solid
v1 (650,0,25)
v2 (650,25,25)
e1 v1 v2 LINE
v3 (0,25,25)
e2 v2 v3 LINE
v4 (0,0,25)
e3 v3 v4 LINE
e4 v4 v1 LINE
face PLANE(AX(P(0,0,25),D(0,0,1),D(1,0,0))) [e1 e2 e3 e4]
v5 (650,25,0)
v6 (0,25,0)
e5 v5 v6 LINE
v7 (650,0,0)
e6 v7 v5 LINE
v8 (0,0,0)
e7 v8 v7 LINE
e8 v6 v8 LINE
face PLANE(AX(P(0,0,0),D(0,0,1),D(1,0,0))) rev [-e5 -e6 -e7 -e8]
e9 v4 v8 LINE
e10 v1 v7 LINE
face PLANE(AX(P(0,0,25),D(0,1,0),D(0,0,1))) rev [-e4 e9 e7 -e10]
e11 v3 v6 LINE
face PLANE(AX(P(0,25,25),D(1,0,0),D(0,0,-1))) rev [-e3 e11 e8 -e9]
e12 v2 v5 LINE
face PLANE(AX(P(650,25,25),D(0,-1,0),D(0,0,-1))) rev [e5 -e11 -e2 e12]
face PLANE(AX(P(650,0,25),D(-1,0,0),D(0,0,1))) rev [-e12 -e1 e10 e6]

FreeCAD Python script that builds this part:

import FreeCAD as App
import Part
import Sketcher

V = App.Vector
Q = App.Units.Quantity


def add_polygon(sketch, points):
    """Adds a closed chain of lines whose ends are joined by coincident constraints."""
    first, n = sketch.GeometryCount, len(points)
    for a, b in zip(points, points[1:] + points[:1]):
        sketch.addGeometry(Part.LineSegment(App.Vector(*a, 0), App.Vector(*b, 0)), False)
    for i in range(n):
        sketch.addConstraint(Sketcher.Constraint("Coincident", first + i, 2, first + (i + 1) % n, 1))

doc = App.newDocument("Part")
params = doc.addObject("Spreadsheet::Sheet", "Params")
for row, (alias, value) in enumerate([
    ("sketch1_width", "650 mm"),
    ("sketch1_height", "25 mm"),
    ("pad1_length", "25 mm"),
], start=1):
    params.set(f"A{row}", alias)
    params.set(f"B{row}", "=" + value)
    params.setAlias(f"B{row}", alias)

body = doc.addObject("PartDesign::Body", "Body")

# Sketch on XY plane
sketch1 = doc.addObject("Sketcher::SketchObject", "Sketch")
body.addObject(sketch1)
sketch1.AttachmentSupport = (doc.XY_Plane, [""])
sketch1.MapMode = "FlatFace"
add_polygon(sketch1, [(0, 25), (0, 0), (650, 0), (650, 25)])  # lines 0-3
sketch1.addConstraint(Sketcher.Constraint("Vertical", 0))
sketch1.addConstraint(Sketcher.Constraint("Horizontal", 1))
sketch1.addConstraint(Sketcher.Constraint("Vertical", 2))
sketch1.addConstraint(Sketcher.Constraint("Horizontal", 3))
sketch1.addConstraint(Sketcher.Constraint("Coincident", 0, 2, -1, 1))
sketch1.addConstraint(Sketcher.Constraint("DistanceX", 1, 1, 1, 2, Q("650 mm")))
sketch1.addConstraint(Sketcher.Constraint("DistanceY", 0, 2, 0, 1, Q("25 mm")))
sketch1.setExpression("Constraints[9]", "Params.sketch1_width")
sketch1.setExpression("Constraints[10]", "Params.sketch1_height")
pad1 = doc.addObject("PartDesign::Pad", "Pad")
body.addObject(pad1)
pad1.Profile = sketch1
pad1.setExpression("Length", "Params.pad1_length")

doc.recompute()
